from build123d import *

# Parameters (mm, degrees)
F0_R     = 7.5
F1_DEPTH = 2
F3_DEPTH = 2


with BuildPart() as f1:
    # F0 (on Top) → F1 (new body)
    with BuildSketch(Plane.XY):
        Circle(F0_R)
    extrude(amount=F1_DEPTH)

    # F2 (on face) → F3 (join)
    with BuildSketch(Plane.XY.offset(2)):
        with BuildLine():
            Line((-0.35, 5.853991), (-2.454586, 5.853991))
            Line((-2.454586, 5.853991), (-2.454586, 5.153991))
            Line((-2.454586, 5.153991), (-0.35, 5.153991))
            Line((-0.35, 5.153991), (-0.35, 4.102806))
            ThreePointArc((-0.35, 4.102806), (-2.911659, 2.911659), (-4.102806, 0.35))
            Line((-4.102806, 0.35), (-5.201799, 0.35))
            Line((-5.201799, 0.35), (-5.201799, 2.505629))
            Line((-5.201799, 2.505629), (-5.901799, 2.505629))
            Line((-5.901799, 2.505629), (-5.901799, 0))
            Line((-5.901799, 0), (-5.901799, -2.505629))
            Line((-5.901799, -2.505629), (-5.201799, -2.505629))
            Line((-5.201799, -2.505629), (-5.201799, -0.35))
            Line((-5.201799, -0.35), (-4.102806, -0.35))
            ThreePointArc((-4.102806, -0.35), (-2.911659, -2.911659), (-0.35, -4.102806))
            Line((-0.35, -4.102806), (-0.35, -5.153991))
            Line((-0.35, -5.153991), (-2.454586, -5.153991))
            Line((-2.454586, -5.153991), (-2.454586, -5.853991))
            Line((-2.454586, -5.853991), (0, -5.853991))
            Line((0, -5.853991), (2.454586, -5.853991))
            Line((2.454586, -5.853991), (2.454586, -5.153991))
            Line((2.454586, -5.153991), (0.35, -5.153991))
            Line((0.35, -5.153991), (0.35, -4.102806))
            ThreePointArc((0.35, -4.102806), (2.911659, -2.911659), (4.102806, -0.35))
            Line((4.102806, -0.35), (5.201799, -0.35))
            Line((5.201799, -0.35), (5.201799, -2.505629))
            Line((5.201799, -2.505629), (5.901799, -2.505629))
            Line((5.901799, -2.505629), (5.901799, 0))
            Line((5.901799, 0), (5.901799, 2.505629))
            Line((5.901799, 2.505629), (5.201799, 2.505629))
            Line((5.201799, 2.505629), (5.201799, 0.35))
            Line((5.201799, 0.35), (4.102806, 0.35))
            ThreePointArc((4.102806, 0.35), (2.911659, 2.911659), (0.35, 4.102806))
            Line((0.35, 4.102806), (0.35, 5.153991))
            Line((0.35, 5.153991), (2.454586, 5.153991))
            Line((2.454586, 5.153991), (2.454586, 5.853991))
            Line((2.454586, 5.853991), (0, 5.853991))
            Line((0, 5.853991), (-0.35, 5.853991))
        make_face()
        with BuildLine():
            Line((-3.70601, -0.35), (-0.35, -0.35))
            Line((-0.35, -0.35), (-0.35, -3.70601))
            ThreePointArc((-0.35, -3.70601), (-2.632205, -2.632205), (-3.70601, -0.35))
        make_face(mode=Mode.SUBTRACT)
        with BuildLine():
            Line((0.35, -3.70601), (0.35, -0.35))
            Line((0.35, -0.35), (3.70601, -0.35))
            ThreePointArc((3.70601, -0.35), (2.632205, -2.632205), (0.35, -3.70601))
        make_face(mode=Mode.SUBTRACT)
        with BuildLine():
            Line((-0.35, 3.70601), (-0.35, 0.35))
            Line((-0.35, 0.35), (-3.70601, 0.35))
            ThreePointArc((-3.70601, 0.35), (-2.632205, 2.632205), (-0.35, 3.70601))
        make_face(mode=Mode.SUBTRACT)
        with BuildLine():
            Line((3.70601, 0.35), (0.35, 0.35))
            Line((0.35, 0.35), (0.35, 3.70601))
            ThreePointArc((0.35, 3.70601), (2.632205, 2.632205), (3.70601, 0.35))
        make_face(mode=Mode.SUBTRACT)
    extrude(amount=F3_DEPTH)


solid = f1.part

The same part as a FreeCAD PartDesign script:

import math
import FreeCAD as App
import Part
import Sketcher

doc = App.newDocument("Part")
params = doc.addObject("Spreadsheet::Sheet", "Params")
for row, (alias, value) in enumerate([
    ("sketch1_diameter", "15 mm"),
    ("pad1_length", "2 mm"),
    ("sketch2_width", "0.7 mm"),
    ("pad2_length", "2 mm"),
], start=1):
    params.set(f"A{row}", alias)
    params.set(f"B{row}", "=" + value)
    params.setAlias(f"B{row}", alias)

body = doc.addObject("PartDesign::Body", "Body")

sketch1 = body.newObject("Sketcher::SketchObject", "Sketch")
sketch1.AttachmentSupport = (doc.getObject("XY_Plane"), [""])
sketch1.MapMode = "FlatFace"
sketch1.addGeometry(Part.Circle(App.Vector(0, 0, 0), App.Vector(0, 0, 1), 8), False)
sketch1.addConstraint(Sketcher.Constraint("Coincident", 0, 3, -1, 1))
sketch1.addConstraint(Sketcher.Constraint("Diameter", 0, 15.0))
sketch1.setExpression("Constraints[1]", "Params.sketch1_diameter")
pad1 = body.newObject("PartDesign::Pad", "Pad")
pad1.Profile = sketch1
pad1.setExpression("Length", "Params.pad1_length")

sketch2 = body.newObject("Sketcher::SketchObject", "Sketch001")
sketch2.AttachmentSupport = (doc.getObject("XY_Plane"), [""])
sketch2.MapMode = "FlatFace"
sketch2.AttachmentOffset = App.Placement(App.Vector(0, 0, 2), App.Rotation())
sketch2.addGeometry(Part.LineSegment(App.Vector(-2.5, 5.9, 0), App.Vector(-2.5, 5.2, 0)), False)
sketch2.addGeometry(Part.LineSegment(App.Vector(-2.5, 5.2, 0), App.Vector(-0.3, 5.2, 0)), False)
sketch2.addGeometry(Part.LineSegment(App.Vector(-0.3, 5.2, 0), App.Vector(-0.3, 4.1, 0)), False)
sketch2.addGeometry(Part.ArcOfCircle(Part.Circle(App.Vector(0, 0, 0), App.Vector(0, 0, 1), 4.1), math.radians(95), math.radians(175)), False)
sketch2.addGeometry(Part.LineSegment(App.Vector(-4.1, 0.3, 0), App.Vector(-5.2, 0.3, 0)), False)
sketch2.addGeometry(Part.LineSegment(App.Vector(-5.2, 0.3, 0), App.Vector(-5.2, 2.5, 0)), False)
sketch2.addGeometry(Part.LineSegment(App.Vector(-5.2, 2.5, 0), App.Vector(-5.9, 2.5, 0)), False)
sketch2.addGeometry(Part.LineSegment(App.Vector(-5.9, 2.5, 0), App.Vector(-5.9, -2.5, 0)), False)
sketch2.addGeometry(Part.LineSegment(App.Vector(-5.9, -2.5, 0), App.Vector(-5.2, -2.5, 0)), False)
sketch2.addGeometry(Part.LineSegment(App.Vector(-5.2, -2.5, 0), App.Vector(-5.2, -0.3, 0)), False)
sketch2.addGeometry(Part.LineSegment(App.Vector(-5.2, -0.3, 0), App.Vector(-4.1, -0.3, 0)), False)
sketch2.addGeometry(Part.ArcOfCircle(Part.Circle(App.Vector(0, 0, 0), App.Vector(0, 0, 1), 4.1), math.radians(-175), math.radians(-95)), False)
sketch2.addGeometry(Part.LineSegment(App.Vector(-0.3, -4.1, 0), App.Vector(-0.3, -5.2, 0)), False)
sketch2.addGeometry(Part.LineSegment(App.Vector(-0.3, -5.2, 0), App.Vector(-2.5, -5.2, 0)), False)
sketch2.addGeometry(Part.LineSegment(App.Vector(-2.5, -5.2, 0), App.Vector(-2.5, -5.9, 0)), False)
sketch2.addGeometry(Part.LineSegment(App.Vector(-2.5, -5.9, 0), App.Vector(2.5, -5.9, 0)), False)
sketch2.addGeometry(Part.LineSegment(App.Vector(2.5, -5.9, 0), App.Vector(2.5, -5.2, 0)), False)
sketch2.addGeometry(Part.LineSegment(App.Vector(2.5, -5.2, 0), App.Vector(0.3, -5.2, 0)), False)
sketch2.addGeometry(Part.LineSegment(App.Vector(0.3, -5.2, 0), App.Vector(0.3, -4.1, 0)), False)
sketch2.addGeometry(Part.ArcOfCircle(Part.Circle(App.Vector(0, 0, 0), App.Vector(0, 0, 1), 4.1), math.radians(-85), math.radians(-5)), False)
sketch2.addGeometry(Part.LineSegment(App.Vector(4.1, -0.3, 0), App.Vector(5.2, -0.3, 0)), False)
sketch2.addGeometry(Part.LineSegment(App.Vector(5.2, -0.3, 0), App.Vector(5.2, -2.5, 0)), False)
sketch2.addGeometry(Part.LineSegment(App.Vector(5.2, -2.5, 0), App.Vector(5.9, -2.5, 0)), False)
sketch2.addGeometry(Part.LineSegment(App.Vector(5.9, -2.5, 0), App.Vector(5.9, 2.5, 0)), False)
sketch2.addGeometry(Part.LineSegment(App.Vector(5.9, 2.5, 0), App.Vector(5.2, 2.5, 0)), False)
sketch2.addGeometry(Part.LineSegment(App.Vector(5.2, 2.5, 0), App.Vector(5.2, 0.3, 0)), False)
sketch2.addGeometry(Part.LineSegment(App.Vector(5.2, 0.3, 0), App.Vector(4.1, 0.3, 0)), False)
sketch2.addGeometry(Part.ArcOfCircle(Part.Circle(App.Vector(0, 0, 0), App.Vector(0, 0, 1), 4.1), math.radians(5), math.radians(85)), False)
sketch2.addGeometry(Part.LineSegment(App.Vector(0.3, 4.1, 0), App.Vector(0.3, 5.2, 0)), False)
sketch2.addGeometry(Part.LineSegment(App.Vector(0.3, 5.2, 0), App.Vector(2.5, 5.2, 0)), False)
sketch2.addGeometry(Part.LineSegment(App.Vector(2.5, 5.2, 0), App.Vector(2.5, 5.9, 0)), False)
sketch2.addGeometry(Part.LineSegment(App.Vector(2.5, 5.9, 0), App.Vector(-2.5, 5.9, 0)), False)
sketch2.addGeometry(Part.ArcOfCircle(Part.Circle(App.Vector(0, 0, 0), App.Vector(0, 0, 1), 3.7), math.radians(-175), math.radians(-95)), False)
sketch2.addGeometry(Part.LineSegment(App.Vector(-3.7, -0.3, 0), App.Vector(-0.3, -0.3, 0)), False)
sketch2.addGeometry(Part.LineSegment(App.Vector(-0.3, -0.3, 0), App.Vector(-0.3, -3.7, 0)), False)
sketch2.addGeometry(Part.ArcOfCircle(Part.Circle(App.Vector(0, 0, 0), App.Vector(0, 0, 1), 3.7), math.radians(-85), math.radians(-5)), False)
sketch2.addGeometry(Part.LineSegment(App.Vector(0.3, -3.7, 0), App.Vector(0.3, -0.3, 0)), False)
sketch2.addGeometry(Part.LineSegment(App.Vector(0.3, -0.3, 0), App.Vector(3.7, -0.3, 0)), False)
sketch2.addGeometry(Part.ArcOfCircle(Part.Circle(App.Vector(0, 0, 0), App.Vector(0, 0, 1), 3.7), math.radians(95), math.radians(175)), False)
sketch2.addGeometry(Part.LineSegment(App.Vector(-0.3, 3.7, 0), App.Vector(-0.3, 0.3, 0)), False)
sketch2.addGeometry(Part.LineSegment(App.Vector(-0.3, 0.3, 0), App.Vector(-3.7, 0.3, 0)), False)
sketch2.addGeometry(Part.ArcOfCircle(Part.Circle(App.Vector(0, 0, 0), App.Vector(0, 0, 1), 3.7), math.radians(5), math.radians(85)), False)
sketch2.addGeometry(Part.LineSegment(App.Vector(3.7, 0.3, 0), App.Vector(0.3, 0.3, 0)), False)
sketch2.addGeometry(Part.LineSegment(App.Vector(0.3, 0.3, 0), App.Vector(0.3, 3.7, 0)), False)
sketch2.addConstraint(Sketcher.Constraint("Coincident", 0, 2, 1, 1))
sketch2.addConstraint(Sketcher.Constraint("Coincident", 1, 2, 2, 1))
sketch2.addConstraint(Sketcher.Constraint("Coincident", 2, 2, 3, 1))
sketch2.addConstraint(Sketcher.Constraint("Coincident", 3, 2, 4, 1))
sketch2.addConstraint(Sketcher.Constraint("Coincident", 4, 2, 5, 1))
sketch2.addConstraint(Sketcher.Constraint("Coincident", 5, 2, 6, 1))
sketch2.addConstraint(Sketcher.Constraint("Coincident", 6, 2, 7, 1))
sketch2.addConstraint(Sketcher.Constraint("Coincident", 7, 2, 8, 1))
sketch2.addConstraint(Sketcher.Constraint("Coincident", 8, 2, 9, 1))
sketch2.addConstraint(Sketcher.Constraint("Coincident", 9, 2, 10, 1))
sketch2.addConstraint(Sketcher.Constraint("Coincident", 10, 2, 11, 1))
sketch2.addConstraint(Sketcher.Constraint("Coincident", 11, 2, 12, 1))
sketch2.addConstraint(Sketcher.Constraint("Coincident", 12, 2, 13, 1))
sketch2.addConstraint(Sketcher.Constraint("Coincident", 13, 2, 14, 1))
sketch2.addConstraint(Sketcher.Constraint("Coincident", 14, 2, 15, 1))
sketch2.addConstraint(Sketcher.Constraint("Coincident", 15, 2, 16, 1))
sketch2.addConstraint(Sketcher.Constraint("Coincident", 16, 2, 17, 1))
sketch2.addConstraint(Sketcher.Constraint("Coincident", 17, 2, 18, 1))
sketch2.addConstraint(Sketcher.Constraint("Coincident", 18, 2, 19, 1))
sketch2.addConstraint(Sketcher.Constraint("Coincident", 19, 2, 20, 1))
sketch2.addConstraint(Sketcher.Constraint("Coincident", 20, 2, 21, 1))
sketch2.addConstraint(Sketcher.Constraint("Coincident", 21, 2, 22, 1))
sketch2.addConstraint(Sketcher.Constraint("Coincident", 22, 2, 23, 1))
sketch2.addConstraint(Sketcher.Constraint("Coincident", 23, 2, 24, 1))
sketch2.addConstraint(Sketcher.Constraint("Coincident", 24, 2, 25, 1))
sketch2.addConstraint(Sketcher.Constraint("Coincident", 25, 2, 26, 1))
sketch2.addConstraint(Sketcher.Constraint("Coincident", 26, 2, 27, 1))
sketch2.addConstraint(Sketcher.Constraint("Coincident", 27, 2, 28, 1))
sketch2.addConstraint(Sketcher.Constraint("Coincident", 28, 2, 29, 1))
sketch2.addConstraint(Sketcher.Constraint("Coincident", 29, 2, 30, 1))
sketch2.addConstraint(Sketcher.Constraint("Coincident", 30, 2, 31, 1))
sketch2.addConstraint(Sketcher.Constraint("Coincident", 31, 2, 0, 1))
sketch2.addConstraint(Sketcher.Constraint("Coincident", 32, 1, 33, 1))
sketch2.addConstraint(Sketcher.Constraint("Coincident", 33, 2, 34, 1))
sketch2.addConstraint(Sketcher.Constraint("Coincident", 34, 2, 32, 2))
sketch2.addConstraint(Sketcher.Constraint("Coincident", 35, 1, 36, 1))
sketch2.addConstraint(Sketcher.Constraint("Coincident", 36, 2, 37, 1))
sketch2.addConstraint(Sketcher.Constraint("Coincident", 37, 2, 35, 2))
sketch2.addConstraint(Sketcher.Constraint("Coincident", 38, 1, 39, 1))
sketch2.addConstraint(Sketcher.Constraint("Coincident", 39, 2, 40, 1))
sketch2.addConstraint(Sketcher.Constraint("Coincident", 40, 2, 38, 2))
sketch2.addConstraint(Sketcher.Constraint("Coincident", 41, 1, 42, 1))
sketch2.addConstraint(Sketcher.Constraint("Coincident", 42, 2, 43, 1))
sketch2.addConstraint(Sketcher.Constraint("Coincident", 43, 2, 41, 2))
sketch2.addConstraint(Sketcher.Constraint("Vertical", 0))
sketch2.addConstraint(Sketcher.Constraint("Horizontal", 1))
sketch2.addConstraint(Sketcher.Constraint("Vertical", 2))
sketch2.addConstraint(Sketcher.Constraint("Horizontal", 4))
sketch2.addConstraint(Sketcher.Constraint("Vertical", 5))
sketch2.addConstraint(Sketcher.Constraint("Horizontal", 6))
sketch2.addConstraint(Sketcher.Constraint("Vertical", 7))
sketch2.addConstraint(Sketcher.Constraint("Horizontal", 8))
sketch2.addConstraint(Sketcher.Constraint("Vertical", 9))
sketch2.addConstraint(Sketcher.Constraint("Horizontal", 10))
sketch2.addConstraint(Sketcher.Constraint("Vertical", 12))
sketch2.addConstraint(Sketcher.Constraint("Horizontal", 13))
sketch2.addConstraint(Sketcher.Constraint("Vertical", 14))
sketch2.addConstraint(Sketcher.Constraint("Horizontal", 15))
sketch2.addConstraint(Sketcher.Constraint("Vertical", 16))
sketch2.addConstraint(Sketcher.Constraint("Horizontal", 17))
sketch2.addConstraint(Sketcher.Constraint("Vertical", 18))
sketch2.addConstraint(Sketcher.Constraint("Horizontal", 20))
sketch2.addConstraint(Sketcher.Constraint("Vertical", 21))
sketch2.addConstraint(Sketcher.Constraint("Horizontal", 22))
sketch2.addConstraint(Sketcher.Constraint("Vertical", 23))
sketch2.addConstraint(Sketcher.Constraint("Horizontal", 24))
sketch2.addConstraint(Sketcher.Constraint("Vertical", 25))
sketch2.addConstraint(Sketcher.Constraint("Horizontal", 26))
sketch2.addConstraint(Sketcher.Constraint("Vertical", 28))
sketch2.addConstraint(Sketcher.Constraint("Horizontal", 29))
sketch2.addConstraint(Sketcher.Constraint("Vertical", 30))
sketch2.addConstraint(Sketcher.Constraint("Horizontal", 31))
sketch2.addConstraint(Sketcher.Constraint("Horizontal", 33))
sketch2.addConstraint(Sketcher.Constraint("Vertical", 34))
sketch2.addConstraint(Sketcher.Constraint("Vertical", 36))
sketch2.addConstraint(Sketcher.Constraint("Horizontal", 37))
sketch2.addConstraint(Sketcher.Constraint("Vertical", 39))
sketch2.addConstraint(Sketcher.Constraint("Horizontal", 40))
sketch2.addConstraint(Sketcher.Constraint("Horizontal", 42))
sketch2.addConstraint(Sketcher.Constraint("Vertical", 43))
sketch2.addConstraint(Sketcher.Constraint("Coincident", 3, 3, -1, 1))
sketch2.addConstraint(Sketcher.Constraint("Coincident", 11, 3, -1, 1))
sketch2.addConstraint(Sketcher.Constraint("Coincident", 19, 3, -1, 1))
sketch2.addConstraint(Sketcher.Constraint("Coincident", 27, 3, -1, 1))
sketch2.addConstraint(Sketcher.Constraint("Coincident", 32, 3, -1, 1))
sketch2.addConstraint(Sketcher.Constraint("Coincident", 35, 3, -1, 1))
sketch2.addConstraint(Sketcher.Constraint("Coincident", 38, 3, -1, 1))
sketch2.addConstraint(Sketcher.Constraint("Coincident", 41, 3, -1, 1))
sketch2.addConstraint(Sketcher.Constraint("Equal", 3, 11))
sketch2.addConstraint(Sketcher.Constraint("Equal", 11, 19))
sketch2.addConstraint(Sketcher.Constraint("Equal", 19, 27))
sketch2.addConstraint(Sketcher.Constraint("Equal", 32, 35))
sketch2.addConstraint(Sketcher.Constraint("Equal", 35, 38))
sketch2.addConstraint(Sketcher.Constraint("Equal", 38, 41))
sketch2.addConstraint(Sketcher.Constraint("Symmetric", 0, 2, 16, 2, -1, 1))
sketch2.addConstraint(Sketcher.Constraint("Symmetric", 4, 2, 20, 2, -1, 1))
sketch2.addConstraint(Sketcher.Constraint("Symmetric", 6, 2, 22, 2, -1, 1))
sketch2.addConstraint(Sketcher.Constraint("Symmetric", 8, 2, 24, 2, -1, 1))
sketch2.addConstraint(Sketcher.Constraint("Symmetric", 12, 2, 28, 2, -1, 1))
sketch2.addConstraint(Sketcher.Constraint("Symmetric", 14, 2, 30, 2, -1, 1))
sketch2.addConstraint(Sketcher.Constraint("Symmetric", 36, 2, 39, 2, -1, 1))
sketch2.addConstraint(Sketcher.Constraint("Symmetric", 33, 2, 42, 2, -1, 1))
sketch2.addConstraint(Sketcher.Constraint("Symmetric", 13, 2, 16, 2, -2))
sketch2.addConstraint(Sketcher.Constraint("Symmetric", 9, 2, 20, 2, -2))
sketch2.addConstraint(Sketcher.Constraint("Symmetric", 33, 2, 36, 2, -2))
sketch2.addConstraint(Sketcher.Constraint("Horizontal", 11, 2, 18, 2))
sketch2.addConstraint(Sketcher.Constraint("Horizontal", 8, 2, 21, 2))
sketch2.addConstraint(Sketcher.Constraint("Horizontal", 4, 2, 25, 2))
sketch2.addConstraint(Sketcher.Constraint("Horizontal", 2, 2, 27, 2))
sketch2.addConstraint(Sketcher.Constraint("Horizontal", 20, 2, 32, 1))
sketch2.addConstraint(Sketcher.Constraint("Vertical", 12, 2, 33, 2))
sketch2.addConstraint(Sketcher.Constraint("Equal", 24, 0))
sketch2.addConstraint(Sketcher.Constraint("Equal", 42, 34))
sketch2.addConstraint(Sketcher.Constraint("DistanceX", 6, 2, 6, 1, 0.7))
sketch2.addConstraint(Sketcher.Constraint("DistanceY", 9, 2, 4, 2, 0.7))
sketch2.addConstraint(Sketcher.Constraint("Radius", 3, 4.117708))
sketch2.addConstraint(Sketcher.Constraint("Radius", 32, 3.722502))
sketch2.addConstraint(Sketcher.Constraint("DistanceY", 5, 1, 5, 2, 2.155629))
sketch2.addConstraint(Sketcher.Constraint("DistanceX", 4, 2, -1, 1, 5.201799))
sketch2.addConstraint(Sketcher.Constraint("DistanceX", 1, 1, 1, 2, 2.104586))
sketch2.addConstraint(Sketcher.Constraint("DistanceY", 2, 2, 2, 1, 1.051185))
sketch2.setExpression("Constraints[113]", "Params.sketch2_width")
pad2 = body.newObject("PartDesign::Pad", "Pad001")
pad2.Profile = sketch2
pad2.setExpression("Length", "Params.pad2_length")

doc.recompute()
